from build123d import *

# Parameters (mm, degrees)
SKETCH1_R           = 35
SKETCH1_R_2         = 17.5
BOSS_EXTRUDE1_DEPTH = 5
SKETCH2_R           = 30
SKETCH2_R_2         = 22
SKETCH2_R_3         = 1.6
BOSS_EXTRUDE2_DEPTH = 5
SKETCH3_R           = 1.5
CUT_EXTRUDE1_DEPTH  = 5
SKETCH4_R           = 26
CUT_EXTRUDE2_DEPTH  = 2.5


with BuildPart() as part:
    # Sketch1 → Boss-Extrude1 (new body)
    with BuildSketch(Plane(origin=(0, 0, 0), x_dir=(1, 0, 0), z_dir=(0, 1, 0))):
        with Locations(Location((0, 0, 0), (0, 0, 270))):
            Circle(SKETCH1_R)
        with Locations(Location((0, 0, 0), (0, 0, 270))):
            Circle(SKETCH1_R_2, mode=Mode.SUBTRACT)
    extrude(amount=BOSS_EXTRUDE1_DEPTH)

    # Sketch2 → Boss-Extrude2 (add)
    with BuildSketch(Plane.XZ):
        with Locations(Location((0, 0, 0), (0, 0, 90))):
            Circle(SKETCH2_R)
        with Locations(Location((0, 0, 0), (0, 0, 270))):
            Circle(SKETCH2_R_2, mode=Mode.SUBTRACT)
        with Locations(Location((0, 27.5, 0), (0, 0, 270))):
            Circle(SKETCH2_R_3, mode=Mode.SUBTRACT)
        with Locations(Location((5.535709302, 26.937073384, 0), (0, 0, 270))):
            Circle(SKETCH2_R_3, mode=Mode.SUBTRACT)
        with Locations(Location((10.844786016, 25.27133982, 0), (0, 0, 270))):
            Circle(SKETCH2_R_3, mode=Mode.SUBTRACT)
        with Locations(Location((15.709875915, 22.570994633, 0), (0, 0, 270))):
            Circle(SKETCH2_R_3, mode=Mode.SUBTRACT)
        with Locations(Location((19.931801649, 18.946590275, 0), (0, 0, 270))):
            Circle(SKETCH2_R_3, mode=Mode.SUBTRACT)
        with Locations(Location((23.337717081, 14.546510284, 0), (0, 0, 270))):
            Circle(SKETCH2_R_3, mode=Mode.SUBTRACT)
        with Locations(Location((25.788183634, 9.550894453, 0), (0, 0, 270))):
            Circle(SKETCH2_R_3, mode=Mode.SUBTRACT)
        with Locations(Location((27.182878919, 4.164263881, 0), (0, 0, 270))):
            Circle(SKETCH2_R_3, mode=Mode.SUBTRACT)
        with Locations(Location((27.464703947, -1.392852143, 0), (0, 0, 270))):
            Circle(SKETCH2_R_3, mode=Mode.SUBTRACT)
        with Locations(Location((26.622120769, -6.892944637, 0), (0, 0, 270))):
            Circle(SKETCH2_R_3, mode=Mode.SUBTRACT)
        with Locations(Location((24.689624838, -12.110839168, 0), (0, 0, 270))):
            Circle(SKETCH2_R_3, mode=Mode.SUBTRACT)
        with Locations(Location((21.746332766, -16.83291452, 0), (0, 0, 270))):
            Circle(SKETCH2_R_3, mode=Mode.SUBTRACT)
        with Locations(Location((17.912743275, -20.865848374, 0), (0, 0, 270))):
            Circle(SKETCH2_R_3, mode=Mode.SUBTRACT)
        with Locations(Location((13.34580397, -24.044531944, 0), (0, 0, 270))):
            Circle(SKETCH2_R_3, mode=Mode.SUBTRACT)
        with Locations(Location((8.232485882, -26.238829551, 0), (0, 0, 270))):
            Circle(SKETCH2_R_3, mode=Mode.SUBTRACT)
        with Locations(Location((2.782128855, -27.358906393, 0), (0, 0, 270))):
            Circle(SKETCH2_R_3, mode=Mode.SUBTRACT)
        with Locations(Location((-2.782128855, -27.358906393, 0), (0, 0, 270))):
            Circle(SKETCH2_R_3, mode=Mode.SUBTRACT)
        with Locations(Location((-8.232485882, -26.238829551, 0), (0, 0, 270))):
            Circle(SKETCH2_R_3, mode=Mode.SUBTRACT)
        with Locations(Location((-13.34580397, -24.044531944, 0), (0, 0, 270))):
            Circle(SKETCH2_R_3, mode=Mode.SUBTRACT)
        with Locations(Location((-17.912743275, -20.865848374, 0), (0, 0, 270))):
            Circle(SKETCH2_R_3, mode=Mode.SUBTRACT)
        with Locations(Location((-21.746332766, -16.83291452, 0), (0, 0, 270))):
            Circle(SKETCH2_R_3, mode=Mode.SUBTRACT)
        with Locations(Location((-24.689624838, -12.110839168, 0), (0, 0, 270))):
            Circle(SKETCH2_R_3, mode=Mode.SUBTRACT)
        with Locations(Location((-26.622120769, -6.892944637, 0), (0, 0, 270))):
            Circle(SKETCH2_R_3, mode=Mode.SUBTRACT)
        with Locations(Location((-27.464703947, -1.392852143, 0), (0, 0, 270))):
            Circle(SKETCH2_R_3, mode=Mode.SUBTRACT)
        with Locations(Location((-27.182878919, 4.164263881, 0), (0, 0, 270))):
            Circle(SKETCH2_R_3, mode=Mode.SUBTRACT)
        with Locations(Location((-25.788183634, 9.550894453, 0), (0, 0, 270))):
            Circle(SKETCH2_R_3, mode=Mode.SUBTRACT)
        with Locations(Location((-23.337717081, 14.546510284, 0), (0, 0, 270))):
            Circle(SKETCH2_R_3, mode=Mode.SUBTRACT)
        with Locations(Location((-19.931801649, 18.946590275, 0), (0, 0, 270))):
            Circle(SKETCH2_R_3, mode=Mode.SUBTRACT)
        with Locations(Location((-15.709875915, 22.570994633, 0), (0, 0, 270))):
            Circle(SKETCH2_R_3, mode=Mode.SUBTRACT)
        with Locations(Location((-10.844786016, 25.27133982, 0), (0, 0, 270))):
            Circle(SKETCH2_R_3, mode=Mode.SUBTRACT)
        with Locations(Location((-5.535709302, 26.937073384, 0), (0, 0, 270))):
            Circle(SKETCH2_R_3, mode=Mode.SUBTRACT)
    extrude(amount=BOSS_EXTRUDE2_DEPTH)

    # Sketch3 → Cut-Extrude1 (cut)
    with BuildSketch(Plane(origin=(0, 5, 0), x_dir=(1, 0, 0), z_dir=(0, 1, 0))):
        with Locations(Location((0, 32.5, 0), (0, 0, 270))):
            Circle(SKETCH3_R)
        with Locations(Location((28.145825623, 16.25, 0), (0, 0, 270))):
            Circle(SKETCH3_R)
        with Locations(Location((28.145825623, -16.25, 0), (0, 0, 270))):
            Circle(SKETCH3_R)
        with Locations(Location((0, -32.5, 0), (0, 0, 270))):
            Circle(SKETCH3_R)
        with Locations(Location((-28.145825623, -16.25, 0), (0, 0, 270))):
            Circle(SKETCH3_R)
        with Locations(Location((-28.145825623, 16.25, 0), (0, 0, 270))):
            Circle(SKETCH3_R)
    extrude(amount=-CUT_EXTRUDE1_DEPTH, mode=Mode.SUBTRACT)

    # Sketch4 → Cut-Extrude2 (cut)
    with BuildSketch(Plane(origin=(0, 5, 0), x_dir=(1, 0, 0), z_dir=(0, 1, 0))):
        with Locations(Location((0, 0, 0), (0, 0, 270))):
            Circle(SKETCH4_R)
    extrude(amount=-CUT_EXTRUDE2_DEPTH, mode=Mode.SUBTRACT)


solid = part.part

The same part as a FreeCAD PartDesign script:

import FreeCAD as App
import Part
import Sketcher
from FreeCAD import Vector
Q = App.Units.Quantity

doc = App.newDocument("Part")
body = doc.addObject("PartDesign::Body", "Body")

sketch1 = body.newObject("Sketcher::SketchObject", "Sketch")
sketch1.AttachmentSupport = (doc.getObject("XZ_Plane"), [""])
sketch1.MapMode = "FlatFace"
sketch1.addGeometry([
    Part.Circle(Vector(0, 0, 0), Vector(0, 0, 1), 35),
    Part.Circle(Vector(0, 0, 0), Vector(0, 0, 1), 18),
], False)
sketch1.addConstraint([
    Sketcher.Constraint("Coincident", 0, 3, -1, 1),
    Sketcher.Constraint("Coincident", 1, 3, -1, 1),
    Sketcher.Constraint("Diameter", 0, Q("70 mm")),
    Sketcher.Constraint("Diameter", 1, Q("35 mm")),
])
pad1 = body.newObject("PartDesign::Pad", "Pad")
pad1.Profile = sketch1
pad1.Length = 5
pad1.Reversed = True

sketch2 = body.newObject("Sketcher::SketchObject", "Sketch001")
sketch2.AttachmentSupport = (doc.getObject("XZ_Plane"), [""])
sketch2.MapMode = "FlatFace"
sketch2.addGeometry([
    Part.Circle(Vector(0, 0, 0), Vector(0, 0, 1), 30),
    Part.Circle(Vector(21.7, -16.8, 0), Vector(0, 0, 1), 1.6),
    Part.Circle(Vector(17.9, -20.9, 0), Vector(0, 0, 1), 1.6),
    Part.Circle(Vector(24.7, -12.1, 0), Vector(0, 0, 1), 1.6),
    Part.Circle(Vector(26.6, -6.9, 0), Vector(0, 0, 1), 1.6),
    Part.Circle(Vector(27.5, -1.4, 0), Vector(0, 0, 1), 1.6),
    Part.Circle(Vector(13.3, -24, 0), Vector(0, 0, 1), 1.6),
    Part.Circle(Vector(8.2, -26.2, 0), Vector(0, 0, 1), 1.6),
    Part.Circle(Vector(2.8, -27.4, 0), Vector(0, 0, 1), 1.6),
    Part.Circle(Vector(0, 0, 0), Vector(0, 0, 1), 22),
    Part.Circle(Vector(27.2, 4.2, 0), Vector(0, 0, 1), 1.6),
    Part.Circle(Vector(25.8, 9.6, 0), Vector(0, 0, 1), 1.6),
    Part.Circle(Vector(23.3, 14.5, 0), Vector(0, 0, 1), 1.6),
    Part.Circle(Vector(19.9, 18.9, 0), Vector(0, 0, 1), 1.6),
    Part.Circle(Vector(15.7, 22.6, 0), Vector(0, 0, 1), 1.6),
    Part.Circle(Vector(10.8, 25.3, 0), Vector(0, 0, 1), 1.6),
    Part.Circle(Vector(5.5, 26.9, 0), Vector(0, 0, 1), 1.6),
    Part.Circle(Vector(-2.8, -27.4, 0), Vector(0, 0, 1), 1.6),
    Part.Circle(Vector(-8.2, -26.2, 0), Vector(0, 0, 1), 1.6),
    Part.Circle(Vector(-13.3, -24, 0), Vector(0, 0, 1), 1.6),
    Part.Circle(Vector(-17.9, -20.9, 0), Vector(0, 0, 1), 1.6),
    Part.Circle(Vector(-21.7, -16.8, 0), Vector(0, 0, 1), 1.6),
    Part.Circle(Vector(-24.7, -12.1, 0), Vector(0, 0, 1), 1.6),
    Part.Circle(Vector(-26.6, -6.9, 0), Vector(0, 0, 1), 1.6),
    Part.Circle(Vector(-27.5, -1.4, 0), Vector(0, 0, 1), 1.6),
    Part.Circle(Vector(0, 27.5, 0), Vector(0, 0, 1), 1.6),
    Part.Circle(Vector(-5.5, 26.9, 0), Vector(0, 0, 1), 1.6),
    Part.Circle(Vector(-10.8, 25.3, 0), Vector(0, 0, 1), 1.6),
    Part.Circle(Vector(-27.2, 4.2, 0), Vector(0, 0, 1), 1.6),
    Part.Circle(Vector(-23.3, 14.5, 0), Vector(0, 0, 1), 1.6),
    Part.Circle(Vector(-25.8, 9.6, 0), Vector(0, 0, 1), 1.6),
    Part.Circle(Vector(-19.9, 18.9, 0), Vector(0, 0, 1), 1.6),
    Part.Circle(Vector(-15.7, 22.6, 0), Vector(0, 0, 1), 1.6),
], False)
sketch2.addConstraint([
    Sketcher.Constraint("Coincident", 0, 3, -1, 1),
    Sketcher.Constraint("Coincident", 9, 3, -1, 1),
    Sketcher.Constraint("Equal", 1, 2),
    Sketcher.Constraint("Equal", 2, 3),
    Sketcher.Constraint("Equal", 3, 4),
    Sketcher.Constraint("Equal", 4, 5),
    Sketcher.Constraint("Equal", 5, 6),
    Sketcher.Constraint("Equal", 6, 7),
    Sketcher.Constraint("Equal", 7, 8),
    Sketcher.Constraint("Equal", 8, 10),
    Sketcher.Constraint("Equal", 10, 11),
    Sketcher.Constraint("Equal", 11, 12),
    Sketcher.Constraint("Equal", 12, 13),
    Sketcher.Constraint("Equal", 13, 14),
    Sketcher.Constraint("Equal", 14, 15),
    Sketcher.Constraint("Equal", 15, 16),
    Sketcher.Constraint("Equal", 16, 17),
    Sketcher.Constraint("Equal", 17, 18),
    Sketcher.Constraint("Equal", 18, 19),
    Sketcher.Constraint("Equal", 19, 20),
    Sketcher.Constraint("Equal", 20, 21),
    Sketcher.Constraint("Equal", 21, 22),
    Sketcher.Constraint("Equal", 22, 23),
    Sketcher.Constraint("Equal", 23, 24),
    Sketcher.Constraint("Equal", 24, 25),
    Sketcher.Constraint("Equal", 25, 26),
    Sketcher.Constraint("Equal", 26, 27),
    Sketcher.Constraint("Equal", 27, 28),
    Sketcher.Constraint("Equal", 28, 29),
    Sketcher.Constraint("Equal", 29, 30),
    Sketcher.Constraint("Equal", 30, 31),
    Sketcher.Constraint("Equal", 31, 32),
    Sketcher.Constraint("Symmetric", 8, 3, 17, 3, -2),
    Sketcher.Constraint("Symmetric", 7, 3, 18, 3, -2),
    Sketcher.Constraint("Symmetric", 6, 3, 19, 3, -2),
    Sketcher.Constraint("Symmetric", 2, 3, 20, 3, -2),
    Sketcher.Constraint("Symmetric", 1, 3, 21, 3, -2),
    Sketcher.Constraint("Symmetric", 3, 3, 22, 3, -2),
    Sketcher.Constraint("Symmetric", 4, 3, 23, 3, -2),
    Sketcher.Constraint("Symmetric", 5, 3, 24, 3, -2),
    Sketcher.Constraint("Symmetric", 16, 3, 26, 3, -2),
    Sketcher.Constraint("Symmetric", 15, 3, 27, 3, -2),
    Sketcher.Constraint("Symmetric", 10, 3, 28, 3, -2),
    Sketcher.Constraint("Symmetric", 12, 3, 29, 3, -2),
    Sketcher.Constraint("Symmetric", 11, 3, 30, 3, -2),
    Sketcher.Constraint("Symmetric", 13, 3, 31, 3, -2),
    Sketcher.Constraint("Symmetric", 14, 3, 32, 3, -2),
    Sketcher.Constraint("PointOnObject", 25, 3, -2),
    Sketcher.Constraint("Diameter", 0, Q("60 mm")),
    Sketcher.Constraint("Diameter", 9, Q("44 mm")),
    Sketcher.Constraint("Diameter", 1, Q("3.2 mm")),
    Sketcher.Constraint("DistanceY", -1, 1, 25, 3, Q("27.5 mm")),
    Sketcher.Constraint("DistanceX", -1, 1, 13, 3, Q("19.931802 mm")),
    Sketcher.Constraint("DistanceX", 6, 3, 5, 3, Q("14.1189 mm")),
    Sketcher.Constraint("DistanceY", 11, 3, 14, 3, Q("13.0201 mm")),
    Sketcher.Constraint("DistanceY", 2, 3, -1, 1, Q("20.865848 mm")),
    Sketcher.Constraint("DistanceY", 3, 3, -1, 1, Q("12.110839 mm")),
    Sketcher.Constraint("DistanceX", -1, 1, 4, 3, Q("26.622121 mm")),
    Sketcher.Constraint("DistanceY", 6, 3, -1, 1, Q("24.044532 mm")),
    Sketcher.Constraint("DistanceY", 7, 3, -1, 1, Q("26.23883 mm")),
    Sketcher.Constraint("DistanceX", -1, 1, 8, 3, Q("2.782129 mm")),
    Sketcher.Constraint("DistanceX", -1, 1, 10, 3, Q("27.182879 mm")),
    Sketcher.Constraint("DistanceY", -1, 1, 12, 3, Q("14.54651 mm")),
    Sketcher.Constraint("DistanceY", -1, 1, 13, 3, Q("18.94659 mm")),
    Sketcher.Constraint("DistanceY", -1, 1, 15, 3, Q("25.27134 mm")),
    Sketcher.Constraint("DistanceX", -1, 1, 16, 3, Q("5.535709 mm")),
    Sketcher.Constraint("DistanceX", 2, 3, 1, 3, Q("3.833589 mm")),
    Sketcher.Constraint("DistanceX", 2, 3, 3, 3, Q("6.776882 mm")),
    Sketcher.Constraint("DistanceX", 1, 3, 4, 3, Q("4.875788 mm")),
    Sketcher.Constraint("DistanceY", 1, 3, 4, 3, Q("9.93997 mm")),
    Sketcher.Constraint("DistanceX", 3, 3, 5, 3, Q("2.775079 mm")),
    Sketcher.Constraint("DistanceY", 6, 3, 5, 3, Q("22.65168 mm")),
    Sketcher.Constraint("DistanceX", 7, 3, 6, 3, Q("5.113318 mm")),
    Sketcher.Constraint("DistanceY", 8, 3, 2, 3, Q("6.493058 mm")),
    Sketcher.Constraint("DistanceY", 8, 3, 1, 3, Q("10.525992 mm")),
    Sketcher.Constraint("DistanceY", 4, 3, 10, 3, Q("11.057209 mm")),
    Sketcher.Constraint("DistanceY", 10, 3, 11, 3, Q("5.386631 mm")),
    Sketcher.Constraint("DistanceX", 11, 3, 5, 3, Q("1.67652 mm")),
    Sketcher.Constraint("DistanceX", 12, 3, 10, 3, Q("3.845162 mm")),
    Sketcher.Constraint("DistanceX", 14, 3, 12, 3, Q("7.627841 mm")),
    Sketcher.Constraint("DistanceX", 15, 3, 14, 3, Q("4.86509 mm")),
    Sketcher.Constraint("DistanceY", 14, 3, 16, 3, Q("4.366079 mm")),
])
pad2 = body.newObject("PartDesign::Pad", "Pad001")
pad2.Profile = sketch2
pad2.Length = 5

sketch3 = body.newObject("Sketcher::SketchObject", "Sketch002")
sketch3.AttachmentSupport = (doc.getObject("XZ_Plane"), [""])
sketch3.MapMode = "FlatFace"
sketch3.AttachmentOffset = App.Placement(Vector(0, 0, -5), App.Rotation())
sketch3.addGeometry([
    Part.Circle(Vector(0, -32.5, 0), Vector(0, 0, 1), 1.5),
    Part.Circle(Vector(28.1, -16.2, 0), Vector(0, 0, 1), 1.5),
    Part.Circle(Vector(28.1, 16.2, 0), Vector(0, 0, 1), 1.5),
    Part.Circle(Vector(0, 32.5, 0), Vector(0, 0, 1), 1.5),
    Part.Circle(Vector(-28.1, 16.2, 0), Vector(0, 0, 1), 1.5),
    Part.Circle(Vector(-28.1, -16.2, 0), Vector(0, 0, 1), 1.5),
], False)
sketch3.addConstraint([
    Sketcher.Constraint("Equal", 0, 1),
    Sketcher.Constraint("Equal", 1, 2),
    Sketcher.Constraint("Equal", 2, 3),
    Sketcher.Constraint("Equal", 3, 4),
    Sketcher.Constraint("Equal", 4, 5),
    Sketcher.Constraint("Symmetric", 0, 3, 3, 3, -1, 1),
    Sketcher.Constraint("Symmetric", 1, 3, 4, 3, -1, 1),
    Sketcher.Constraint("Symmetric", 2, 3, 5, 3, -1, 1),
    Sketcher.Constraint("Symmetric", 2, 3, 4, 3, -2),
    Sketcher.Constraint("PointOnObject", 0, 3, -2),
    Sketcher.Constraint("Diameter", 0, Q("3 mm")),
    Sketcher.Constraint("DistanceY", 0, 3, 3, 3, Q("65 mm")),
    Sketcher.Constraint("DistanceY", 1, 3, 2, 3, Q("32.5 mm")),
    Sketcher.Constraint("DistanceX", 4, 3, 2, 3, Q("56.291651 mm")),
])
pocket1 = body.newObject("PartDesign::Pocket", "Pocket")
pocket1.Profile = sketch3
pocket1.Length = 5
pocket1.Reversed = True

sketch4 = body.newObject("Sketcher::SketchObject", "Sketch003")
sketch4.AttachmentSupport = (doc.getObject("XZ_Plane"), [""])
sketch4.MapMode = "FlatFace"
sketch4.AttachmentOffset = App.Placement(Vector(0, 0, -5), App.Rotation())
sketch4.addGeometry(Part.Circle(Vector(0, 0, 0), Vector(0, 0, 1), 26), False)
sketch4.addConstraint([
    Sketcher.Constraint("Coincident", 0, 3, -1, 1),
    Sketcher.Constraint("Diameter", 0, Q("52 mm")),
])
pocket2 = body.newObject("PartDesign::Pocket", "Pocket001")
pocket2.Profile = sketch4
pocket2.Length = 2.5
pocket2.Reversed = True

doc.recompute()
